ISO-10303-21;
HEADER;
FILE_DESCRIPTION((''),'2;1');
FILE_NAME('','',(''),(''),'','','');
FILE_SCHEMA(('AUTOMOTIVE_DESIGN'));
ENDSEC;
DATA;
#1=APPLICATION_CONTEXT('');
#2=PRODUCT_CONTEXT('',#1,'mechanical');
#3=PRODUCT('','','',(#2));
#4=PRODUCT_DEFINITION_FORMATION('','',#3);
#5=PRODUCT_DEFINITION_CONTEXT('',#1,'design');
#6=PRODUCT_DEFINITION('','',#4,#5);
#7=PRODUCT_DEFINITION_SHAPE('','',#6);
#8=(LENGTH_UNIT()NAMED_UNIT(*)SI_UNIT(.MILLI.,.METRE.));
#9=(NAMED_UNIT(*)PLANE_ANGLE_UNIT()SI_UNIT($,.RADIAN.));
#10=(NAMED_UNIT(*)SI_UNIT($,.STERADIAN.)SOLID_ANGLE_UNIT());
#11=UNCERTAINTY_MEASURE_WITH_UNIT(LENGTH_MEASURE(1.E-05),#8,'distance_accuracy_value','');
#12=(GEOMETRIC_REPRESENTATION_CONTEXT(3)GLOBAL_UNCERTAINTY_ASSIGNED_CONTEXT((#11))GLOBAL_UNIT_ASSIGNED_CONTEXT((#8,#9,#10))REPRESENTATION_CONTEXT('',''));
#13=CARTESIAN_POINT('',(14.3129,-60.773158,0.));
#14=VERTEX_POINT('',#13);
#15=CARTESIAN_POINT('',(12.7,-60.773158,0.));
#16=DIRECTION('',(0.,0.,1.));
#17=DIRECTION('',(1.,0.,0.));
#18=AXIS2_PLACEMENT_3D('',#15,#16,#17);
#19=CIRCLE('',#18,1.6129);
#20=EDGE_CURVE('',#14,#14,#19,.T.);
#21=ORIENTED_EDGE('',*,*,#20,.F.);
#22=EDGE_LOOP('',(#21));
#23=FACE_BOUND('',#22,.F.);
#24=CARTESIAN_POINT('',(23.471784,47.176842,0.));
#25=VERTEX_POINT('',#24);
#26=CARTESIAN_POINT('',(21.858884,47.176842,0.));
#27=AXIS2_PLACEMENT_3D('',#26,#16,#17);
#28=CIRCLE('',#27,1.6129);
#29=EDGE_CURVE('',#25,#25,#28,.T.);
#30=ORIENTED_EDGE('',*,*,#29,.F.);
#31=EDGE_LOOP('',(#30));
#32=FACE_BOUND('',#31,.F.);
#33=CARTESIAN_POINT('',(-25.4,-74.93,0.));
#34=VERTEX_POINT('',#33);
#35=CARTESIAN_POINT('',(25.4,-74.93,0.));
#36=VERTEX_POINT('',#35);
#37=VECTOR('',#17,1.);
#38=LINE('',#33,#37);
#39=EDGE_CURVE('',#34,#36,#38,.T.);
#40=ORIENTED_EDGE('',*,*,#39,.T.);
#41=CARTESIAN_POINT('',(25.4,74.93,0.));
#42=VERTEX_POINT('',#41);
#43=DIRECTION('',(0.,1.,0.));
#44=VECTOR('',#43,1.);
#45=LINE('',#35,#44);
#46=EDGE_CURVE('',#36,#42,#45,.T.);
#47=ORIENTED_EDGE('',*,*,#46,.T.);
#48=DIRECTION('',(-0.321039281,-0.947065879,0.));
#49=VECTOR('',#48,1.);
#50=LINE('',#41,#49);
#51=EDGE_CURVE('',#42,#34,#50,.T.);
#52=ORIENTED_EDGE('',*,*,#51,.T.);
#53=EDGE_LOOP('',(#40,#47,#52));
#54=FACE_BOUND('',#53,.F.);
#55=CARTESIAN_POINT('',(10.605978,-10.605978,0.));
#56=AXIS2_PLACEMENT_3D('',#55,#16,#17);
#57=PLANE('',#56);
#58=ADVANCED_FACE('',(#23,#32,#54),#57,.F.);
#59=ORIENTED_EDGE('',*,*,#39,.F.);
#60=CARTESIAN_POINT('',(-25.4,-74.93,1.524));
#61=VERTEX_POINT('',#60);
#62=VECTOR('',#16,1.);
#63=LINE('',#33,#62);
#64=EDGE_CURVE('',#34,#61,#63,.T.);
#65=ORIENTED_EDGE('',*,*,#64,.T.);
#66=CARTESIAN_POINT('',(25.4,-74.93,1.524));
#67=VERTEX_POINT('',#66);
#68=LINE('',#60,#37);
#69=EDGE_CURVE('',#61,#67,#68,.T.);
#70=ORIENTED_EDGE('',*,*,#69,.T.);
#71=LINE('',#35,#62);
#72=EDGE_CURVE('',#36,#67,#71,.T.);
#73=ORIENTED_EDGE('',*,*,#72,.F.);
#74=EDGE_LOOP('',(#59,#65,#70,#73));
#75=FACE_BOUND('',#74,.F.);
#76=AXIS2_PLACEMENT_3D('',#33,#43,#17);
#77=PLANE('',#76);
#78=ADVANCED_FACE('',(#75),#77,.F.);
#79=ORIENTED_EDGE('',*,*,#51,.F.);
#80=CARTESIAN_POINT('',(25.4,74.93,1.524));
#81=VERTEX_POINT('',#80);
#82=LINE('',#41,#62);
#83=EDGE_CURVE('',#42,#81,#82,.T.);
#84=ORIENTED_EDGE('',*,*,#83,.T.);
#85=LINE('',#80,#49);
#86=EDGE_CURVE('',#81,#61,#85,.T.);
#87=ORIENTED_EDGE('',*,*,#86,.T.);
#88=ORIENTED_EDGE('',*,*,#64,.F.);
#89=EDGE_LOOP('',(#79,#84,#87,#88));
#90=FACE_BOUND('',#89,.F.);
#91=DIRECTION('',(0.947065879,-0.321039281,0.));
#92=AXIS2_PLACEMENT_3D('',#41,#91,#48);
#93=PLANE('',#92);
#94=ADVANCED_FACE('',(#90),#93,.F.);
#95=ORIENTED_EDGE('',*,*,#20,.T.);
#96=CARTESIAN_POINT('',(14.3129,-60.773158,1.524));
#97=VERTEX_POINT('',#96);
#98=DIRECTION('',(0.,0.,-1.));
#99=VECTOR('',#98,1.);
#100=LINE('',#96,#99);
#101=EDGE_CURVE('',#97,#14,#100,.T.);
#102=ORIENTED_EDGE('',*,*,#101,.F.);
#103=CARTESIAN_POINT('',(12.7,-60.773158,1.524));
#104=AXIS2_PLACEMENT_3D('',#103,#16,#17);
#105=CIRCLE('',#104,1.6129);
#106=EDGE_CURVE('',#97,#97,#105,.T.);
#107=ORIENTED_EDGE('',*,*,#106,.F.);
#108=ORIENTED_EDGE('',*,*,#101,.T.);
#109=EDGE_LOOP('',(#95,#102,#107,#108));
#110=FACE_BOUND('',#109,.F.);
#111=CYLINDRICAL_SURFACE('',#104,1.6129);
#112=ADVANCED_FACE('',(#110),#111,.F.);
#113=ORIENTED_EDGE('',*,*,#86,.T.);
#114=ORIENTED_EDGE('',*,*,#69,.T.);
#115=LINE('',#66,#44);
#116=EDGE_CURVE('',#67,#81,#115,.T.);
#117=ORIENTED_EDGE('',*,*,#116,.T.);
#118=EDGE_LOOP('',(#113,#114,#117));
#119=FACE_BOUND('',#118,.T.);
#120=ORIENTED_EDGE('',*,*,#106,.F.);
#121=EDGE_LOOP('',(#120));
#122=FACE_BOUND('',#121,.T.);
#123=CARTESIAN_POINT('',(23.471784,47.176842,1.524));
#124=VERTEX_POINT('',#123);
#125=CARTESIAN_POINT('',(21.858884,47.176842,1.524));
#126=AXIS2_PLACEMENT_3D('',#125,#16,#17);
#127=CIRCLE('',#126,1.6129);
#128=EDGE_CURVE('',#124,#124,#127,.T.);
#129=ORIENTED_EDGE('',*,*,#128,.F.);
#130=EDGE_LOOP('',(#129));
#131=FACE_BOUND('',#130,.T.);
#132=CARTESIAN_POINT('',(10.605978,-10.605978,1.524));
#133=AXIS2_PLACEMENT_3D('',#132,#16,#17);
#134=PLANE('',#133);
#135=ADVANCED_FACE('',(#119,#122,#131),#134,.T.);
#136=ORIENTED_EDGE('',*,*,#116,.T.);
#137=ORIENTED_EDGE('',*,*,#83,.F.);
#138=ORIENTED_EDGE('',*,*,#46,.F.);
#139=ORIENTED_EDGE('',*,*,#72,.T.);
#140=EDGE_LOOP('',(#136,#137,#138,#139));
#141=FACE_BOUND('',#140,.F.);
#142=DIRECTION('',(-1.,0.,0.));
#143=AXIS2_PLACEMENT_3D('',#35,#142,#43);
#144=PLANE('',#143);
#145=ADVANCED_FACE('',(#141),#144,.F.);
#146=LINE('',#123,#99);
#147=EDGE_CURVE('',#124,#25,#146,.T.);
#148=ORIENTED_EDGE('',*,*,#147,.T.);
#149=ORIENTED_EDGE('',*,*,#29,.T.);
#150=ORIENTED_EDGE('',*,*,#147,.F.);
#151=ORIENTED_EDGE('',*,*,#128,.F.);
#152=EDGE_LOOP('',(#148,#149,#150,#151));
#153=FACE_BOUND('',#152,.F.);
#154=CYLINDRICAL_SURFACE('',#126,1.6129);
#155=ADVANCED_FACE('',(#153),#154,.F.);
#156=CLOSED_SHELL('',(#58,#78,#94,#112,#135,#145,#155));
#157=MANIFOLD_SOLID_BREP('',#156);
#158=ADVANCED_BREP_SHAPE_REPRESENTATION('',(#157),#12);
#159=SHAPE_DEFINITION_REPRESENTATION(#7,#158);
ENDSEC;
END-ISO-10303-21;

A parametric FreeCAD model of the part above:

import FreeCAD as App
import Part
import Sketcher
from FreeCAD import Vector
Q = App.Units.Quantity


def add_polygon(sketch, points):
    """Adds a closed chain of lines whose ends are joined by coincident constraints."""
    first, n = sketch.GeometryCount, len(points)
    for a, b in zip(points, points[1:] + points[:1]):
        sketch.addGeometry(Part.LineSegment(App.Vector(*a, 0), App.Vector(*b, 0)), False)
    for i in range(n):
        sketch.addConstraint(Sketcher.Constraint("Coincident", first + i, 2, first + (i + 1) % n, 1))

doc = App.newDocument("Part")
params = doc.addObject("Spreadsheet::Sheet", "Params")
for row, (alias, value) in enumerate([
    ("sketch1_width", "2 in"),
    ("sketch1_height", "5.9 in"),
    ("pad1_length", "0.06 in"),
    ("sketch2_diameter", "0.127 in"),
    ("pocket1_length", "1 in"),
    ("sketch3_diameter", "0.127 in"),
    ("pocket2_length", "1.55 in"),
], start=1):
    params.set(f"A{row}", alias)
    params.set(f"B{row}", "=" + value)
    params.setAlias(f"B{row}", alias)

body = doc.addObject("PartDesign::Body", "Body")

# Sketch on XY plane
sketch1 = body.newObject("Sketcher::SketchObject", "Sketch")
sketch1.AttachmentSupport = (doc.getObject("XY_Plane"), [""])
sketch1.MapMode = "FlatFace"
add_polygon(sketch1, [(-25, -75), (25, -75), (25, 75)])  # lines 0-2
sketch1.addConstraint([
    Sketcher.Constraint("Horizontal", 0),
    Sketcher.Constraint("Vertical", 1),
    Sketcher.Constraint("Symmetric", 1, 2, 2, 2, -1, 1),
    Sketcher.Constraint("DistanceX", 0, 1, 0, 2, Q("2 in")),
    Sketcher.Constraint("DistanceY", 1, 1, 1, 2, Q("5.9 in")),
])
sketch1.setExpression("Constraints[6]", "Params.sketch1_width")
sketch1.setExpression("Constraints[7]", "Params.sketch1_height")
pad1 = body.newObject("PartDesign::Pad", "Pad")
pad1.Profile = sketch1
pad1.setExpression("Length", "Params.pad1_length")

# Sketch on XY plane
sketch2 = body.newObject("Sketcher::SketchObject", "Sketch001")
sketch2.AttachmentSupport = (doc.getObject("XY_Plane"), [""])
sketch2.MapMode = "FlatFace"
sketch2.AttachmentOffset = App.Placement(Vector(0, 0, 0.06 * 25.4), App.Rotation())
sketch2.addGeometry([
    Part.Circle(Vector(21.9, 47.2, 0), Vector(0, 0, 1), 1.6),
    Part.Circle(Vector(12.7, -60.8, 0), Vector(0, 0, 1), 1.6),
], False)
sketch2.addConstraint([
    Sketcher.Constraint("Equal", 0, 1),
    Sketcher.Constraint("Diameter", 0, Q("0.127 in")),
    Sketcher.Constraint("DistanceX", -1, 1, 1, 3, Q("0.5 in")),
    Sketcher.Constraint("DistanceY", 1, 3, 0, 3, Q("4.25 in")),
    Sketcher.Constraint("DistanceY", 1, 3, -1, 1, 60.773158),
    Sketcher.Constraint("DistanceX", -1, 1, 0, 3, 21.858884),
])
sketch2.setExpression("Constraints[1]", "Params.sketch2_diameter")
pocket1 = body.newObject("PartDesign::Pocket", "Pocket")
pocket1.Profile = sketch2
pocket1.setExpression("Length", "Params.pocket1_length")

# Sketch on XY plane
sketch3 = body.newObject("Sketcher::SketchObject", "Sketch002")
sketch3.AttachmentSupport = (doc.getObject("XY_Plane"), [""])
sketch3.MapMode = "FlatFace"
sketch3.AttachmentOffset = App.Placement(Vector(0, 0, 0.06 * 25.4), App.Rotation())
sketch3.addGeometry([
    Part.Circle(Vector(21.9, 47.2, 0), Vector(0, 0, 1), 1.6),
    Part.Circle(Vector(12.7, -60.8, 0), Vector(0, 0, 1), 1.6),
], False)
sketch3.addConstraint([
    Sketcher.Constraint("Equal", 0, 1),
    Sketcher.Constraint("Diameter", 0, Q("0.127 in")),
    Sketcher.Constraint("DistanceX", -1, 1, 1, 3, Q("0.5 in")),
    Sketcher.Constraint("DistanceY", 1, 3, 0, 3, Q("4.25 in")),
    Sketcher.Constraint("DistanceY", 1, 3, -1, 1, 60.773158),
    Sketcher.Constraint("DistanceX", -1, 1, 0, 3, 21.858884),
])
sketch3.setExpression("Constraints[1]", "Params.sketch3_diameter")
pocket2 = body.newObject("PartDesign::Pocket", "Pocket001")
pocket2.Profile = sketch3
pocket2.setExpression("Length", "Params.pocket2_length")
pocket2.Reversed = True

doc.recompute()
